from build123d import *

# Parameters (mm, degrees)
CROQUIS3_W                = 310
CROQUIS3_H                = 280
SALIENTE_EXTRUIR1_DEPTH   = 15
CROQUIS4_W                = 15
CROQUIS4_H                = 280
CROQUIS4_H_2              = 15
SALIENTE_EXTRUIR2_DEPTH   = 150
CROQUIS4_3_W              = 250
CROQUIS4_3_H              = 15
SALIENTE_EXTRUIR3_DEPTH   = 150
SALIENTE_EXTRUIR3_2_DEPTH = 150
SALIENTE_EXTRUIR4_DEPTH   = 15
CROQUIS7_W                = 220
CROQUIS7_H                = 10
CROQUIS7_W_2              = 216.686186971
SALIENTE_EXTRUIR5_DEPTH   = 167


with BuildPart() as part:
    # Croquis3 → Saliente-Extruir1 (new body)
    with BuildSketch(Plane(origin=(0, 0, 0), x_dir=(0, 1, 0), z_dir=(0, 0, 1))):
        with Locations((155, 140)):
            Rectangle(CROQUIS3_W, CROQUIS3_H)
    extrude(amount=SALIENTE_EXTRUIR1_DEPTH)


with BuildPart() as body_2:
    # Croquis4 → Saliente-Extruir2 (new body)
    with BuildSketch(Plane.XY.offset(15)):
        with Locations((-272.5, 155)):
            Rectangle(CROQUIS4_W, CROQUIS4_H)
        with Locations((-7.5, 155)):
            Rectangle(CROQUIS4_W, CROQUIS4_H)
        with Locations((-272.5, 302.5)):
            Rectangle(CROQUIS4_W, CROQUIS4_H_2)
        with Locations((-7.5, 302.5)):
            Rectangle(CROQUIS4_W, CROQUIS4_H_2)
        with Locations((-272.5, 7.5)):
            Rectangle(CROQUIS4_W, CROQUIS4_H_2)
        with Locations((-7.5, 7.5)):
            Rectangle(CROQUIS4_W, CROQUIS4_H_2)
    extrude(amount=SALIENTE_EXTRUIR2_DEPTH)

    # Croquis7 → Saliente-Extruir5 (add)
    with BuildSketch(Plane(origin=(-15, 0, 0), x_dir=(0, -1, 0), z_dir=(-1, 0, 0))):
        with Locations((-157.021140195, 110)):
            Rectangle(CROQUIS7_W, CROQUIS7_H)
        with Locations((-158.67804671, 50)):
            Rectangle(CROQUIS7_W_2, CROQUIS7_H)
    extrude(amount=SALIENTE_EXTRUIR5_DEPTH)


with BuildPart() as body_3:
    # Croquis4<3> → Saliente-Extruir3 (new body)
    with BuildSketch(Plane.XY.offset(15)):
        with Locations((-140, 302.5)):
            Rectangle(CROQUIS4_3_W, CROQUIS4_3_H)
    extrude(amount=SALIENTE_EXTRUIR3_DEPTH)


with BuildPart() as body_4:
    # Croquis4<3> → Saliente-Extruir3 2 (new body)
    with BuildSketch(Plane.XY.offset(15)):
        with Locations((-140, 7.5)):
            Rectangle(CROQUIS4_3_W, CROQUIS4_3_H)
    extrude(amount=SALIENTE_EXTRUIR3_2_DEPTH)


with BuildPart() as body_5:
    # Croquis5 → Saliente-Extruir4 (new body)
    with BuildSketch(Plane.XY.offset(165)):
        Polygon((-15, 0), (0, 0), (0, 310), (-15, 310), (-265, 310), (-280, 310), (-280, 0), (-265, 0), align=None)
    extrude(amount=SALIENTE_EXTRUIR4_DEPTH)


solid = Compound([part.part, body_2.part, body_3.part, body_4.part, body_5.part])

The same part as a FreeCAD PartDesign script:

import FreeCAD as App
import Part
import Sketcher
from FreeCAD import Vector
Q = App.Units.Quantity

doc = App.newDocument("Part")
body = doc.addObject("PartDesign::Body", "Body")

# Sketch on XY plane
sketch1 = body.newObject("Sketcher::SketchObject", "Sketch")
sketch1.AttachmentSupport = (doc.getObject("XY_Plane"), [""])
sketch1.MapMode = "FlatFace"
sketch1.addGeometry(Part.LineSegment(Vector(-280, 0, 0), Vector(0, 0, 0)), False)
sketch1.addGeometry(Part.LineSegment(Vector(0, 0, 0), Vector(0, 310, 0)), False)
sketch1.addGeometry(Part.LineSegment(Vector(0, 310, 0), Vector(-280, 310, 0)), False)
sketch1.addGeometry(Part.LineSegment(Vector(-280, 310, 0), Vector(-280, 0, 0)), False)
sketch1.addConstraint(Sketcher.Constraint("Coincident", 0, 2, 1, 1))
sketch1.addConstraint(Sketcher.Constraint("Coincident", 1, 2, 2, 1))
sketch1.addConstraint(Sketcher.Constraint("Coincident", 2, 2, 3, 1))
sketch1.addConstraint(Sketcher.Constraint("Coincident", 3, 2, 0, 1))
sketch1.addConstraint(Sketcher.Constraint("Horizontal", 0))
sketch1.addConstraint(Sketcher.Constraint("Vertical", 1))
sketch1.addConstraint(Sketcher.Constraint("Horizontal", 2))
sketch1.addConstraint(Sketcher.Constraint("Vertical", 3))
sketch1.addConstraint(Sketcher.Constraint("Coincident", 0, 2, -1, 1))
sketch1.addConstraint(Sketcher.Constraint("DistanceX", 0, 1, 0, 2, Q("280 mm")))
sketch1.addConstraint(Sketcher.Constraint("DistanceY", 1, 1, 1, 2, Q("310 mm")))
pad1 = body.newObject("PartDesign::Pad", "Pad")
pad1.Profile = sketch1
pad1.Length = 15
body2 = doc.addObject("PartDesign::Body", "Body001")
body2.AllowCompound = True

# Sketch on XY plane
sketch2 = body2.newObject("Sketcher::SketchObject", "Sketch001")
sketch2.AttachmentSupport = (doc.getObject("XY_Plane001"), [""])
sketch2.MapMode = "FlatFace"
sketch2.AttachmentOffset = App.Placement(Vector(0, 0, 15), App.Rotation())
sketch2.addGeometry(Part.LineSegment(Vector(-265, 310, 0), Vector(-280, 310, 0)), False)
sketch2.addGeometry(Part.LineSegment(Vector(-280, 310, 0), Vector(-280, 0, 0)), False)
sketch2.addGeometry(Part.LineSegment(Vector(-280, 0, 0), Vector(-265, 0, 0)), False)
sketch2.addGeometry(Part.LineSegment(Vector(-265, 0, 0), Vector(-265, 310, 0)), False)
sketch2.addGeometry(Part.LineSegment(Vector(0, 310, 0), Vector(-15, 310, 0)), False)
sketch2.addGeometry(Part.LineSegment(Vector(-15, 310, 0), Vector(-15, 0, 0)), False)
sketch2.addGeometry(Part.LineSegment(Vector(-15, 0, 0), Vector(0, 0, 0)), False)
sketch2.addGeometry(Part.LineSegment(Vector(0, 0, 0), Vector(0, 310, 0)), False)
sketch2.addConstraint(Sketcher.Constraint("Coincident", 0, 2, 1, 1))
sketch2.addConstraint(Sketcher.Constraint("Coincident", 1, 2, 2, 1))
sketch2.addConstraint(Sketcher.Constraint("Coincident", 2, 2, 3, 1))
sketch2.addConstraint(Sketcher.Constraint("Coincident", 3, 2, 0, 1))
sketch2.addConstraint(Sketcher.Constraint("Coincident", 4, 2, 5, 1))
sketch2.addConstraint(Sketcher.Constraint("Coincident", 5, 2, 6, 1))
sketch2.addConstraint(Sketcher.Constraint("Coincident", 6, 2, 7, 1))
sketch2.addConstraint(Sketcher.Constraint("Coincident", 7, 2, 4, 1))
sketch2.addConstraint(Sketcher.Constraint("Horizontal", 0))
sketch2.addConstraint(Sketcher.Constraint("Vertical", 1))
sketch2.addConstraint(Sketcher.Constraint("Horizontal", 2))
sketch2.addConstraint(Sketcher.Constraint("Vertical", 3))
sketch2.addConstraint(Sketcher.Constraint("Horizontal", 4))
sketch2.addConstraint(Sketcher.Constraint("Vertical", 5))
sketch2.addConstraint(Sketcher.Constraint("Horizontal", 6))
sketch2.addConstraint(Sketcher.Constraint("Vertical", 7))
sketch2.addConstraint(Sketcher.Constraint("Coincident", 6, 2, -1, 1))
sketch2.addConstraint(Sketcher.Constraint("PointOnObject", 1, 2, -1))
sketch2.addConstraint(Sketcher.Constraint("Horizontal", 3, 2, 4, 2))
sketch2.addConstraint(Sketcher.Constraint("Equal", 2, 4))
sketch2.addConstraint(Sketcher.Constraint("DistanceX", 0, 2, 0, 1, Q("15 mm")))
sketch2.addConstraint(Sketcher.Constraint("DistanceY", 1, 2, 1, 1, Q("310 mm")))
sketch2.addConstraint(Sketcher.Constraint("DistanceX", 0, 2, -1, 1, Q("280 mm")))
pad2 = body2.newObject("PartDesign::Pad", "Pad001")
pad2.Profile = sketch2
pad2.Length = 150

# Sketch on YZ plane
sketch3 = body2.newObject("Sketcher::SketchObject", "Sketch002")
sketch3.AttachmentSupport = (doc.getObject("YZ_Plane001"), [""])
sketch3.MapMode = "FlatFace"
sketch3.AttachmentOffset = App.Placement(Vector(0, 0, -15), App.Rotation())
sketch3.addGeometry(Part.LineSegment(Vector(267.02114, 115, 0), Vector(267.02114, 105, 0)), False)
sketch3.addGeometry(Part.LineSegment(Vector(267.02114, 105, 0), Vector(47.02114, 105, 0)), False)
sketch3.addGeometry(Part.LineSegment(Vector(47.02114, 105, 0), Vector(47.02114, 115, 0)), False)
sketch3.addGeometry(Part.LineSegment(Vector(47.02114, 115, 0), Vector(267.02114, 115, 0)), False)
sketch3.addGeometry(Part.LineSegment(Vector(267.02114, 55, 0), Vector(267.02114, 45, 0)), False)
sketch3.addGeometry(Part.LineSegment(Vector(267.02114, 45, 0), Vector(50.334953, 45, 0)), False)
sketch3.addGeometry(Part.LineSegment(Vector(50.334953, 45, 0), Vector(50.334953, 55, 0)), False)
sketch3.addGeometry(Part.LineSegment(Vector(50.334953, 55, 0), Vector(267.02114, 55, 0)), False)
sketch3.addConstraint(Sketcher.Constraint("Coincident", 0, 2, 1, 1))
sketch3.addConstraint(Sketcher.Constraint("Coincident", 1, 2, 2, 1))
sketch3.addConstraint(Sketcher.Constraint("Coincident", 2, 2, 3, 1))
sketch3.addConstraint(Sketcher.Constraint("Coincident", 3, 2, 0, 1))
sketch3.addConstraint(Sketcher.Constraint("Coincident", 4, 2, 5, 1))
sketch3.addConstraint(Sketcher.Constraint("Coincident", 5, 2, 6, 1))
sketch3.addConstraint(Sketcher.Constraint("Coincident", 6, 2, 7, 1))
sketch3.addConstraint(Sketcher.Constraint("Coincident", 7, 2, 4, 1))
sketch3.addConstraint(Sketcher.Constraint("Vertical", 0))
sketch3.addConstraint(Sketcher.Constraint("Horizontal", 1))
sketch3.addConstraint(Sketcher.Constraint("Vertical", 2))
sketch3.addConstraint(Sketcher.Constraint("Horizontal", 3))
sketch3.addConstraint(Sketcher.Constraint("Vertical", 4))
sketch3.addConstraint(Sketcher.Constraint("Horizontal", 5))
sketch3.addConstraint(Sketcher.Constraint("Vertical", 6))
sketch3.addConstraint(Sketcher.Constraint("Horizontal", 7))
sketch3.addConstraint(Sketcher.Constraint("Vertical", 3, 2, 4, 2))
sketch3.addConstraint(Sketcher.Constraint("Equal", 2, 4))
sketch3.addConstraint(Sketcher.Constraint("DistanceX", 1, 2, 1, 1, Q("220 mm")))
sketch3.addConstraint(Sketcher.Constraint("DistanceY", 0, 2, 0, 1, Q("10 mm")))
sketch3.addConstraint(Sketcher.Constraint("DistanceY", -1, 1, 0, 2, Q("105 mm")))
sketch3.addConstraint(Sketcher.Constraint("DistanceY", -1, 1, 4, 2, Q("45 mm")))
sketch3.addConstraint(Sketcher.Constraint("DistanceX", 5, 2, 5, 1, Q("216.686187 mm")))
sketch3.addConstraint(Sketcher.Constraint("DistanceX", -1, 1, 0, 2, Q("267.02114 mm")))
pad3 = body2.newObject("PartDesign::Pad", "Pad002")
pad3.Profile = sketch3
pad3.Length = 167
pad3.Reversed = True
body3 = doc.addObject("PartDesign::Body", "Body002")

# Sketch on XY plane
sketch4 = body3.newObject("Sketcher::SketchObject", "Sketch003")
sketch4.AttachmentSupport = (doc.getObject("XY_Plane002"), [""])
sketch4.MapMode = "FlatFace"
sketch4.AttachmentOffset = App.Placement(Vector(0, 0, 15), App.Rotation())
sketch4.addGeometry(Part.LineSegment(Vector(-265, 310, 0), Vector(-265, 295, 0)), False)
sketch4.addGeometry(Part.LineSegment(Vector(-265, 295, 0), Vector(-15, 295, 0)), False)
sketch4.addGeometry(Part.LineSegment(Vector(-15, 295, 0), Vector(-15, 310, 0)), False)
sketch4.addGeometry(Part.LineSegment(Vector(-15, 310, 0), Vector(-265, 310, 0)), False)
sketch4.addConstraint(Sketcher.Constraint("Coincident", 0, 2, 1, 1))
sketch4.addConstraint(Sketcher.Constraint("Coincident", 1, 2, 2, 1))
sketch4.addConstraint(Sketcher.Constraint("Coincident", 2, 2, 3, 1))
sketch4.addConstraint(Sketcher.Constraint("Coincident", 3, 2, 0, 1))
sketch4.addConstraint(Sketcher.Constraint("Vertical", 0))
sketch4.addConstraint(Sketcher.Constraint("Horizontal", 1))
sketch4.addConstraint(Sketcher.Constraint("Vertical", 2))
sketch4.addConstraint(Sketcher.Constraint("Horizontal", 3))
sketch4.addConstraint(Sketcher.Constraint("DistanceX", 1, 1, 1, 2, Q("250 mm")))
sketch4.addConstraint(Sketcher.Constraint("DistanceY", 0, 2, 0, 1, Q("15 mm")))
sketch4.addConstraint(Sketcher.Constraint("DistanceX", 0, 2, -1, 1, Q("265 mm")))
sketch4.addConstraint(Sketcher.Constraint("DistanceY", -1, 1, 0, 2, Q("295 mm")))
pad4 = body3.newObject("PartDesign::Pad", "Pad003")
pad4.Profile = sketch4
pad4.Length = 150
body4 = doc.addObject("PartDesign::Body", "Body003")

# Sketch on XY plane
sketch5 = body4.newObject("Sketcher::SketchObject", "Sketch004")
sketch5.AttachmentSupport = (doc.getObject("XY_Plane003"), [""])
sketch5.MapMode = "FlatFace"
sketch5.AttachmentOffset = App.Placement(Vector(0, 0, 15), App.Rotation())
sketch5.addGeometry(Part.LineSegment(Vector(-265, 15, 0), Vector(-265, 0, 0)), False)
sketch5.addGeometry(Part.LineSegment(Vector(-265, 0, 0), Vector(-15, 0, 0)), False)
sketch5.addGeometry(Part.LineSegment(Vector(-15, 0, 0), Vector(-15, 15, 0)), False)
sketch5.addGeometry(Part.LineSegment(Vector(-15, 15, 0), Vector(-265, 15, 0)), False)
sketch5.addConstraint(Sketcher.Constraint("Coincident", 0, 2, 1, 1))
sketch5.addConstraint(Sketcher.Constraint("Coincident", 1, 2, 2, 1))
sketch5.addConstraint(Sketcher.Constraint("Coincident", 2, 2, 3, 1))
sketch5.addConstraint(Sketcher.Constraint("Coincident", 3, 2, 0, 1))
sketch5.addConstraint(Sketcher.Constraint("Vertical", 0))
sketch5.addConstraint(Sketcher.Constraint("Horizontal", 1))
sketch5.addConstraint(Sketcher.Constraint("Vertical", 2))
sketch5.addConstraint(Sketcher.Constraint("Horizontal", 3))
sketch5.addConstraint(Sketcher.Constraint("PointOnObject", 0, 2, -1))
sketch5.addConstraint(Sketcher.Constraint("DistanceX", 1, 1, 1, 2, Q("250 mm")))
sketch5.addConstraint(Sketcher.Constraint("DistanceY", 0, 2, 0, 1, Q("15 mm")))
sketch5.addConstraint(Sketcher.Constraint("DistanceX", 0, 2, -1, 1, Q("265 mm")))
pad5 = body4.newObject("PartDesign::Pad", "Pad004")
pad5.Profile = sketch5
pad5.Length = 150
body5 = doc.addObject("PartDesign::Body", "Body004")

# Sketch on XY plane
sketch6 = body5.newObject("Sketcher::SketchObject", "Sketch005")
sketch6.AttachmentSupport = (doc.getObject("XY_Plane004"), [""])
sketch6.MapMode = "FlatFace"
sketch6.AttachmentOffset = App.Placement(Vector(0, 0, 165), App.Rotation())
sketch6.addGeometry(Part.LineSegment(Vector(0, 0, 0), Vector(0, 310, 0)), False)
sketch6.addGeometry(Part.LineSegment(Vector(0, 310, 0), Vector(-280, 310, 0)), False)
sketch6.addGeometry(Part.LineSegment(Vector(-280, 310, 0), Vector(-280, 0, 0)), False)
sketch6.addGeometry(Part.LineSegment(Vector(-280, 0, 0), Vector(0, 0, 0)), False)
sketch6.addConstraint(Sketcher.Constraint("Coincident", 0, 2, 1, 1))
sketch6.addConstraint(Sketcher.Constraint("Coincident", 1, 2, 2, 1))
sketch6.addConstraint(Sketcher.Constraint("Coincident", 2, 2, 3, 1))
sketch6.addConstraint(Sketcher.Constraint("Coincident", 3, 2, 0, 1))
sketch6.addConstraint(Sketcher.Constraint("Vertical", 0))
sketch6.addConstraint(Sketcher.Constraint("Horizontal", 1))
sketch6.addConstraint(Sketcher.Constraint("Vertical", 2))
sketch6.addConstraint(Sketcher.Constraint("Horizontal", 3))
sketch6.addConstraint(Sketcher.Constraint("Coincident", 3, 2, -1, 1))
sketch6.addConstraint(Sketcher.Constraint("DistanceX", 1, 2, 1, 1, Q("280 mm")))
sketch6.addConstraint(Sketcher.Constraint("DistanceY", 0, 1, 0, 2, Q("310 mm")))
pad6 = body5.newObject("PartDesign::Pad", "Pad005")
pad6.Profile = sketch6
pad6.Length = 15

doc.recompute()
